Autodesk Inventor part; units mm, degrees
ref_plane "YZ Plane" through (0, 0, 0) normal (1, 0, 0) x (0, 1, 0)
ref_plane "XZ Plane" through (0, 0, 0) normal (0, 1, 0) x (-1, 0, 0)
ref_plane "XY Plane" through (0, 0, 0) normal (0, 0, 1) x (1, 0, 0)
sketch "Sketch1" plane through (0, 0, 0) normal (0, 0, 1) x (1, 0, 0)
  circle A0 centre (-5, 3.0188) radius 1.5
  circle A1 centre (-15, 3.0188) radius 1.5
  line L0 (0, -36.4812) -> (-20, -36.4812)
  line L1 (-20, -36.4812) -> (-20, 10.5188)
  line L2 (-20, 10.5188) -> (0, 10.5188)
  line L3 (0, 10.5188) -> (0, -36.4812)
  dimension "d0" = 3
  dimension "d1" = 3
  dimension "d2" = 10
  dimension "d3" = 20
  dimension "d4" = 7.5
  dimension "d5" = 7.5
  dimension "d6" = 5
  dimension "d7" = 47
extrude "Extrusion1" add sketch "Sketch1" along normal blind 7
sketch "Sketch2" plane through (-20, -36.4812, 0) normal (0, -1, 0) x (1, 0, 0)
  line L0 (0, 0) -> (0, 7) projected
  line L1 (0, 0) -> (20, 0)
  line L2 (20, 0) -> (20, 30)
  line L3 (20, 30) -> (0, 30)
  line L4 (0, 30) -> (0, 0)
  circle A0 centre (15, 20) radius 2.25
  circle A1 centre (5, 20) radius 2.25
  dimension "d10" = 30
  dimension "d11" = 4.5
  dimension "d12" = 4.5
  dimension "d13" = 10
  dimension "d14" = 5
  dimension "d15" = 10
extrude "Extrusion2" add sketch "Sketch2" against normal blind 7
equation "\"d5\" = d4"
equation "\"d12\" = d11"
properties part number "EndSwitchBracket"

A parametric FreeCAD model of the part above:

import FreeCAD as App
import Part
import Sketcher
Q = App.Units.Quantity


def add_polygon(sketch, points):
    """Adds a closed chain of lines whose ends are joined by coincident constraints."""
    first, n = sketch.GeometryCount, len(points)
    for a, b in zip(points, points[1:] + points[:1]):
        sketch.addGeometry(Part.LineSegment(App.Vector(*a, 0), App.Vector(*b, 0)), False)
    for i in range(n):
        sketch.addConstraint(Sketcher.Constraint("Coincident", first + i, 2, first + (i + 1) % n, 1))

doc = App.newDocument("Part")
body = doc.addObject("PartDesign::Body", "Body")

# Sketch on XY plane
sketch1 = body.newObject("Sketcher::SketchObject", "Sketch")
sketch1.AttachmentSupport = (doc.getObject("XY_Plane"), [""])
sketch1.MapMode = "FlatFace"
add_polygon(sketch1, [(-20, -36.4812), (0, -36.4812), (0, 10.5188), (-20, 10.5188)])  # lines 0-3
sketch1.addGeometry(Part.Circle(App.Vector(-15, 3.0188, 0), App.Vector(0, 0, 1), 1.5), False)  # 4
sketch1.addGeometry(Part.Circle(App.Vector(-5, 3.0188, 0), App.Vector(0, 0, 1), 1.5), False)  # 5
sketch1.addConstraint(Sketcher.Constraint("Horizontal", 0))
sketch1.addConstraint(Sketcher.Constraint("Vertical", 1))
sketch1.addConstraint(Sketcher.Constraint("Horizontal", 2))
sketch1.addConstraint(Sketcher.Constraint("Vertical", 3))
sketch1.addConstraint(Sketcher.Constraint("Equal", 4, 5))
sketch1.addConstraint(Sketcher.Constraint("PointOnObject", 0, 2, -2))
sketch1.addConstraint(Sketcher.Constraint("Horizontal", 4, 3, 5, 3))
sketch1.addConstraint(Sketcher.Constraint("Diameter", 4, Q("3 mm")))
sketch1.addConstraint(Sketcher.Constraint("DistanceX", 0, 1, 0, 2, Q("20 mm")))
sketch1.addConstraint(Sketcher.Constraint("DistanceY", 1, 1, 1, 2, Q("47 mm")))
sketch1.addConstraint(Sketcher.Constraint("DistanceX", 5, 3, -1, 1, Q("5 mm")))
sketch1.addConstraint(Sketcher.Constraint("DistanceX", 4, 3, 5, 3, Q("10 mm")))
sketch1.addConstraint(Sketcher.Constraint("DistanceY", 5, 3, 1, 2, Q("7.5 mm")))
sketch1.addConstraint(Sketcher.Constraint("DistanceY", -1, 1, 4, 3, Q("3.0188 mm")))
pad1 = body.newObject("PartDesign::Pad", "Pad")
pad1.Profile = sketch1
pad1.Length = 7

# Sketch on XZ plane
sketch2 = body.newObject("Sketcher::SketchObject", "Sketch001")
sketch2.AttachmentSupport = (doc.getObject("XZ_Plane"), [""])
sketch2.MapMode = "FlatFace"
sketch2.AttachmentOffset = App.Placement(App.Vector(0, 0, 36.4812), App.Rotation())
add_polygon(sketch2, [(-20, 30), (-20, 0), (0, 0), (0, 30)])  # lines 0-3
sketch2.addGeometry(Part.Circle(App.Vector(-15, 20, 0), App.Vector(0, 0, 1), 2.25), False)  # 4
sketch2.addGeometry(Part.Circle(App.Vector(-5, 20, 0), App.Vector(0, 0, 1), 2.25), False)  # 5
sketch2.addConstraint(Sketcher.Constraint("Vertical", 0))
sketch2.addConstraint(Sketcher.Constraint("Horizontal", 1))
sketch2.addConstraint(Sketcher.Constraint("Vertical", 2))
sketch2.addConstraint(Sketcher.Constraint("Horizontal", 3))
sketch2.addConstraint(Sketcher.Constraint("Coincident", 1, 2, -1, 1))
sketch2.addConstraint(Sketcher.Constraint("Equal", 4, 5))
sketch2.addConstraint(Sketcher.Constraint("Horizontal", 4, 3, 5, 3))
sketch2.addConstraint(Sketcher.Constraint("Diameter", 4, Q("4.5 mm")))
sketch2.addConstraint(Sketcher.Constraint("DistanceY", 0, 2, 0, 1, Q("30 mm")))
sketch2.addConstraint(Sketcher.Constraint("DistanceX", 5, 3, -1, 1, Q("5 mm")))
sketch2.addConstraint(Sketcher.Constraint("DistanceX", 4, 3, 5, 3, Q("10 mm")))
sketch2.addConstraint(Sketcher.Constraint("DistanceX", 0, 2, 4, 3, Q("5 mm")))
sketch2.addConstraint(Sketcher.Constraint("DistanceY", 5, 3, 2, 2, Q("10 mm")))
pad2 = body.newObject("PartDesign::Pad", "Pad001")
pad2.Profile = sketch2
pad2.Length = 7
pad2.Reversed = True

doc.recompute()
